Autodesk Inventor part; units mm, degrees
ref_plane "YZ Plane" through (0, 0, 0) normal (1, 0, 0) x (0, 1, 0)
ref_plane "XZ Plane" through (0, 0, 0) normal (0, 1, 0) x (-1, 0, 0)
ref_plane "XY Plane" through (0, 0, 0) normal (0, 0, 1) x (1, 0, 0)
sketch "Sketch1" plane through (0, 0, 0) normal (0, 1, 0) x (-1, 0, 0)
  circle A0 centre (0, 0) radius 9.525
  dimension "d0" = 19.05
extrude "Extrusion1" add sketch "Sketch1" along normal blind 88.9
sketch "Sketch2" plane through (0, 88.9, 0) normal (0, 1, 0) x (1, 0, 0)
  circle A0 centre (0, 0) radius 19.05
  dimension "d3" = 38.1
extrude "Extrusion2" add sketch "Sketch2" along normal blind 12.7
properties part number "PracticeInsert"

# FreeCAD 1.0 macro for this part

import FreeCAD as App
import Part
import Sketcher
from FreeCAD import Vector
Q = App.Units.Quantity

doc = App.newDocument("Part")
body = doc.addObject("PartDesign::Body", "Body")

# Sketch on XZ plane
sketch1 = doc.addObject("Sketcher::SketchObject", "Sketch")
body.addObject(sketch1)
sketch1.AttachmentSupport = (doc.XZ_Plane, [""])
sketch1.MapMode = "FlatFace"
sketch1.addGeometry(Part.Circle(Vector(0, 0, 0), Vector(0, 0, 1), 10), False)
sketch1.addConstraint(Sketcher.Constraint("Coincident", 0, 3, -1, 1))
sketch1.addConstraint(Sketcher.Constraint("Diameter", 0, Q("0.75 in")))
pad1 = doc.addObject("PartDesign::Pad", "Pad")
body.addObject(pad1)
pad1.Profile = sketch1
pad1.Length = Q("3.5 in")
pad1.Reversed = True

# Sketch on XZ plane
sketch2 = doc.addObject("Sketcher::SketchObject", "Sketch001")
body.addObject(sketch2)
sketch2.AttachmentSupport = (doc.XZ_Plane, [""])
sketch2.MapMode = "FlatFace"
sketch2.AttachmentOffset = App.Placement(Vector(0, 0, -3.5 * 25.4), App.Rotation())
sketch2.addGeometry(Part.Circle(Vector(0, 0, 0), Vector(0, 0, 1), 19), False)
sketch2.addConstraint(Sketcher.Constraint("Coincident", 0, 3, -1, 1))
sketch2.addConstraint(Sketcher.Constraint("Diameter", 0, Q("1.5 in")))
pad2 = doc.addObject("PartDesign::Pad", "Pad001")
body.addObject(pad2)
pad2.Profile = sketch2
pad2.Length = Q("0.5 in")
pad2.Reversed = True

doc.recompute()
